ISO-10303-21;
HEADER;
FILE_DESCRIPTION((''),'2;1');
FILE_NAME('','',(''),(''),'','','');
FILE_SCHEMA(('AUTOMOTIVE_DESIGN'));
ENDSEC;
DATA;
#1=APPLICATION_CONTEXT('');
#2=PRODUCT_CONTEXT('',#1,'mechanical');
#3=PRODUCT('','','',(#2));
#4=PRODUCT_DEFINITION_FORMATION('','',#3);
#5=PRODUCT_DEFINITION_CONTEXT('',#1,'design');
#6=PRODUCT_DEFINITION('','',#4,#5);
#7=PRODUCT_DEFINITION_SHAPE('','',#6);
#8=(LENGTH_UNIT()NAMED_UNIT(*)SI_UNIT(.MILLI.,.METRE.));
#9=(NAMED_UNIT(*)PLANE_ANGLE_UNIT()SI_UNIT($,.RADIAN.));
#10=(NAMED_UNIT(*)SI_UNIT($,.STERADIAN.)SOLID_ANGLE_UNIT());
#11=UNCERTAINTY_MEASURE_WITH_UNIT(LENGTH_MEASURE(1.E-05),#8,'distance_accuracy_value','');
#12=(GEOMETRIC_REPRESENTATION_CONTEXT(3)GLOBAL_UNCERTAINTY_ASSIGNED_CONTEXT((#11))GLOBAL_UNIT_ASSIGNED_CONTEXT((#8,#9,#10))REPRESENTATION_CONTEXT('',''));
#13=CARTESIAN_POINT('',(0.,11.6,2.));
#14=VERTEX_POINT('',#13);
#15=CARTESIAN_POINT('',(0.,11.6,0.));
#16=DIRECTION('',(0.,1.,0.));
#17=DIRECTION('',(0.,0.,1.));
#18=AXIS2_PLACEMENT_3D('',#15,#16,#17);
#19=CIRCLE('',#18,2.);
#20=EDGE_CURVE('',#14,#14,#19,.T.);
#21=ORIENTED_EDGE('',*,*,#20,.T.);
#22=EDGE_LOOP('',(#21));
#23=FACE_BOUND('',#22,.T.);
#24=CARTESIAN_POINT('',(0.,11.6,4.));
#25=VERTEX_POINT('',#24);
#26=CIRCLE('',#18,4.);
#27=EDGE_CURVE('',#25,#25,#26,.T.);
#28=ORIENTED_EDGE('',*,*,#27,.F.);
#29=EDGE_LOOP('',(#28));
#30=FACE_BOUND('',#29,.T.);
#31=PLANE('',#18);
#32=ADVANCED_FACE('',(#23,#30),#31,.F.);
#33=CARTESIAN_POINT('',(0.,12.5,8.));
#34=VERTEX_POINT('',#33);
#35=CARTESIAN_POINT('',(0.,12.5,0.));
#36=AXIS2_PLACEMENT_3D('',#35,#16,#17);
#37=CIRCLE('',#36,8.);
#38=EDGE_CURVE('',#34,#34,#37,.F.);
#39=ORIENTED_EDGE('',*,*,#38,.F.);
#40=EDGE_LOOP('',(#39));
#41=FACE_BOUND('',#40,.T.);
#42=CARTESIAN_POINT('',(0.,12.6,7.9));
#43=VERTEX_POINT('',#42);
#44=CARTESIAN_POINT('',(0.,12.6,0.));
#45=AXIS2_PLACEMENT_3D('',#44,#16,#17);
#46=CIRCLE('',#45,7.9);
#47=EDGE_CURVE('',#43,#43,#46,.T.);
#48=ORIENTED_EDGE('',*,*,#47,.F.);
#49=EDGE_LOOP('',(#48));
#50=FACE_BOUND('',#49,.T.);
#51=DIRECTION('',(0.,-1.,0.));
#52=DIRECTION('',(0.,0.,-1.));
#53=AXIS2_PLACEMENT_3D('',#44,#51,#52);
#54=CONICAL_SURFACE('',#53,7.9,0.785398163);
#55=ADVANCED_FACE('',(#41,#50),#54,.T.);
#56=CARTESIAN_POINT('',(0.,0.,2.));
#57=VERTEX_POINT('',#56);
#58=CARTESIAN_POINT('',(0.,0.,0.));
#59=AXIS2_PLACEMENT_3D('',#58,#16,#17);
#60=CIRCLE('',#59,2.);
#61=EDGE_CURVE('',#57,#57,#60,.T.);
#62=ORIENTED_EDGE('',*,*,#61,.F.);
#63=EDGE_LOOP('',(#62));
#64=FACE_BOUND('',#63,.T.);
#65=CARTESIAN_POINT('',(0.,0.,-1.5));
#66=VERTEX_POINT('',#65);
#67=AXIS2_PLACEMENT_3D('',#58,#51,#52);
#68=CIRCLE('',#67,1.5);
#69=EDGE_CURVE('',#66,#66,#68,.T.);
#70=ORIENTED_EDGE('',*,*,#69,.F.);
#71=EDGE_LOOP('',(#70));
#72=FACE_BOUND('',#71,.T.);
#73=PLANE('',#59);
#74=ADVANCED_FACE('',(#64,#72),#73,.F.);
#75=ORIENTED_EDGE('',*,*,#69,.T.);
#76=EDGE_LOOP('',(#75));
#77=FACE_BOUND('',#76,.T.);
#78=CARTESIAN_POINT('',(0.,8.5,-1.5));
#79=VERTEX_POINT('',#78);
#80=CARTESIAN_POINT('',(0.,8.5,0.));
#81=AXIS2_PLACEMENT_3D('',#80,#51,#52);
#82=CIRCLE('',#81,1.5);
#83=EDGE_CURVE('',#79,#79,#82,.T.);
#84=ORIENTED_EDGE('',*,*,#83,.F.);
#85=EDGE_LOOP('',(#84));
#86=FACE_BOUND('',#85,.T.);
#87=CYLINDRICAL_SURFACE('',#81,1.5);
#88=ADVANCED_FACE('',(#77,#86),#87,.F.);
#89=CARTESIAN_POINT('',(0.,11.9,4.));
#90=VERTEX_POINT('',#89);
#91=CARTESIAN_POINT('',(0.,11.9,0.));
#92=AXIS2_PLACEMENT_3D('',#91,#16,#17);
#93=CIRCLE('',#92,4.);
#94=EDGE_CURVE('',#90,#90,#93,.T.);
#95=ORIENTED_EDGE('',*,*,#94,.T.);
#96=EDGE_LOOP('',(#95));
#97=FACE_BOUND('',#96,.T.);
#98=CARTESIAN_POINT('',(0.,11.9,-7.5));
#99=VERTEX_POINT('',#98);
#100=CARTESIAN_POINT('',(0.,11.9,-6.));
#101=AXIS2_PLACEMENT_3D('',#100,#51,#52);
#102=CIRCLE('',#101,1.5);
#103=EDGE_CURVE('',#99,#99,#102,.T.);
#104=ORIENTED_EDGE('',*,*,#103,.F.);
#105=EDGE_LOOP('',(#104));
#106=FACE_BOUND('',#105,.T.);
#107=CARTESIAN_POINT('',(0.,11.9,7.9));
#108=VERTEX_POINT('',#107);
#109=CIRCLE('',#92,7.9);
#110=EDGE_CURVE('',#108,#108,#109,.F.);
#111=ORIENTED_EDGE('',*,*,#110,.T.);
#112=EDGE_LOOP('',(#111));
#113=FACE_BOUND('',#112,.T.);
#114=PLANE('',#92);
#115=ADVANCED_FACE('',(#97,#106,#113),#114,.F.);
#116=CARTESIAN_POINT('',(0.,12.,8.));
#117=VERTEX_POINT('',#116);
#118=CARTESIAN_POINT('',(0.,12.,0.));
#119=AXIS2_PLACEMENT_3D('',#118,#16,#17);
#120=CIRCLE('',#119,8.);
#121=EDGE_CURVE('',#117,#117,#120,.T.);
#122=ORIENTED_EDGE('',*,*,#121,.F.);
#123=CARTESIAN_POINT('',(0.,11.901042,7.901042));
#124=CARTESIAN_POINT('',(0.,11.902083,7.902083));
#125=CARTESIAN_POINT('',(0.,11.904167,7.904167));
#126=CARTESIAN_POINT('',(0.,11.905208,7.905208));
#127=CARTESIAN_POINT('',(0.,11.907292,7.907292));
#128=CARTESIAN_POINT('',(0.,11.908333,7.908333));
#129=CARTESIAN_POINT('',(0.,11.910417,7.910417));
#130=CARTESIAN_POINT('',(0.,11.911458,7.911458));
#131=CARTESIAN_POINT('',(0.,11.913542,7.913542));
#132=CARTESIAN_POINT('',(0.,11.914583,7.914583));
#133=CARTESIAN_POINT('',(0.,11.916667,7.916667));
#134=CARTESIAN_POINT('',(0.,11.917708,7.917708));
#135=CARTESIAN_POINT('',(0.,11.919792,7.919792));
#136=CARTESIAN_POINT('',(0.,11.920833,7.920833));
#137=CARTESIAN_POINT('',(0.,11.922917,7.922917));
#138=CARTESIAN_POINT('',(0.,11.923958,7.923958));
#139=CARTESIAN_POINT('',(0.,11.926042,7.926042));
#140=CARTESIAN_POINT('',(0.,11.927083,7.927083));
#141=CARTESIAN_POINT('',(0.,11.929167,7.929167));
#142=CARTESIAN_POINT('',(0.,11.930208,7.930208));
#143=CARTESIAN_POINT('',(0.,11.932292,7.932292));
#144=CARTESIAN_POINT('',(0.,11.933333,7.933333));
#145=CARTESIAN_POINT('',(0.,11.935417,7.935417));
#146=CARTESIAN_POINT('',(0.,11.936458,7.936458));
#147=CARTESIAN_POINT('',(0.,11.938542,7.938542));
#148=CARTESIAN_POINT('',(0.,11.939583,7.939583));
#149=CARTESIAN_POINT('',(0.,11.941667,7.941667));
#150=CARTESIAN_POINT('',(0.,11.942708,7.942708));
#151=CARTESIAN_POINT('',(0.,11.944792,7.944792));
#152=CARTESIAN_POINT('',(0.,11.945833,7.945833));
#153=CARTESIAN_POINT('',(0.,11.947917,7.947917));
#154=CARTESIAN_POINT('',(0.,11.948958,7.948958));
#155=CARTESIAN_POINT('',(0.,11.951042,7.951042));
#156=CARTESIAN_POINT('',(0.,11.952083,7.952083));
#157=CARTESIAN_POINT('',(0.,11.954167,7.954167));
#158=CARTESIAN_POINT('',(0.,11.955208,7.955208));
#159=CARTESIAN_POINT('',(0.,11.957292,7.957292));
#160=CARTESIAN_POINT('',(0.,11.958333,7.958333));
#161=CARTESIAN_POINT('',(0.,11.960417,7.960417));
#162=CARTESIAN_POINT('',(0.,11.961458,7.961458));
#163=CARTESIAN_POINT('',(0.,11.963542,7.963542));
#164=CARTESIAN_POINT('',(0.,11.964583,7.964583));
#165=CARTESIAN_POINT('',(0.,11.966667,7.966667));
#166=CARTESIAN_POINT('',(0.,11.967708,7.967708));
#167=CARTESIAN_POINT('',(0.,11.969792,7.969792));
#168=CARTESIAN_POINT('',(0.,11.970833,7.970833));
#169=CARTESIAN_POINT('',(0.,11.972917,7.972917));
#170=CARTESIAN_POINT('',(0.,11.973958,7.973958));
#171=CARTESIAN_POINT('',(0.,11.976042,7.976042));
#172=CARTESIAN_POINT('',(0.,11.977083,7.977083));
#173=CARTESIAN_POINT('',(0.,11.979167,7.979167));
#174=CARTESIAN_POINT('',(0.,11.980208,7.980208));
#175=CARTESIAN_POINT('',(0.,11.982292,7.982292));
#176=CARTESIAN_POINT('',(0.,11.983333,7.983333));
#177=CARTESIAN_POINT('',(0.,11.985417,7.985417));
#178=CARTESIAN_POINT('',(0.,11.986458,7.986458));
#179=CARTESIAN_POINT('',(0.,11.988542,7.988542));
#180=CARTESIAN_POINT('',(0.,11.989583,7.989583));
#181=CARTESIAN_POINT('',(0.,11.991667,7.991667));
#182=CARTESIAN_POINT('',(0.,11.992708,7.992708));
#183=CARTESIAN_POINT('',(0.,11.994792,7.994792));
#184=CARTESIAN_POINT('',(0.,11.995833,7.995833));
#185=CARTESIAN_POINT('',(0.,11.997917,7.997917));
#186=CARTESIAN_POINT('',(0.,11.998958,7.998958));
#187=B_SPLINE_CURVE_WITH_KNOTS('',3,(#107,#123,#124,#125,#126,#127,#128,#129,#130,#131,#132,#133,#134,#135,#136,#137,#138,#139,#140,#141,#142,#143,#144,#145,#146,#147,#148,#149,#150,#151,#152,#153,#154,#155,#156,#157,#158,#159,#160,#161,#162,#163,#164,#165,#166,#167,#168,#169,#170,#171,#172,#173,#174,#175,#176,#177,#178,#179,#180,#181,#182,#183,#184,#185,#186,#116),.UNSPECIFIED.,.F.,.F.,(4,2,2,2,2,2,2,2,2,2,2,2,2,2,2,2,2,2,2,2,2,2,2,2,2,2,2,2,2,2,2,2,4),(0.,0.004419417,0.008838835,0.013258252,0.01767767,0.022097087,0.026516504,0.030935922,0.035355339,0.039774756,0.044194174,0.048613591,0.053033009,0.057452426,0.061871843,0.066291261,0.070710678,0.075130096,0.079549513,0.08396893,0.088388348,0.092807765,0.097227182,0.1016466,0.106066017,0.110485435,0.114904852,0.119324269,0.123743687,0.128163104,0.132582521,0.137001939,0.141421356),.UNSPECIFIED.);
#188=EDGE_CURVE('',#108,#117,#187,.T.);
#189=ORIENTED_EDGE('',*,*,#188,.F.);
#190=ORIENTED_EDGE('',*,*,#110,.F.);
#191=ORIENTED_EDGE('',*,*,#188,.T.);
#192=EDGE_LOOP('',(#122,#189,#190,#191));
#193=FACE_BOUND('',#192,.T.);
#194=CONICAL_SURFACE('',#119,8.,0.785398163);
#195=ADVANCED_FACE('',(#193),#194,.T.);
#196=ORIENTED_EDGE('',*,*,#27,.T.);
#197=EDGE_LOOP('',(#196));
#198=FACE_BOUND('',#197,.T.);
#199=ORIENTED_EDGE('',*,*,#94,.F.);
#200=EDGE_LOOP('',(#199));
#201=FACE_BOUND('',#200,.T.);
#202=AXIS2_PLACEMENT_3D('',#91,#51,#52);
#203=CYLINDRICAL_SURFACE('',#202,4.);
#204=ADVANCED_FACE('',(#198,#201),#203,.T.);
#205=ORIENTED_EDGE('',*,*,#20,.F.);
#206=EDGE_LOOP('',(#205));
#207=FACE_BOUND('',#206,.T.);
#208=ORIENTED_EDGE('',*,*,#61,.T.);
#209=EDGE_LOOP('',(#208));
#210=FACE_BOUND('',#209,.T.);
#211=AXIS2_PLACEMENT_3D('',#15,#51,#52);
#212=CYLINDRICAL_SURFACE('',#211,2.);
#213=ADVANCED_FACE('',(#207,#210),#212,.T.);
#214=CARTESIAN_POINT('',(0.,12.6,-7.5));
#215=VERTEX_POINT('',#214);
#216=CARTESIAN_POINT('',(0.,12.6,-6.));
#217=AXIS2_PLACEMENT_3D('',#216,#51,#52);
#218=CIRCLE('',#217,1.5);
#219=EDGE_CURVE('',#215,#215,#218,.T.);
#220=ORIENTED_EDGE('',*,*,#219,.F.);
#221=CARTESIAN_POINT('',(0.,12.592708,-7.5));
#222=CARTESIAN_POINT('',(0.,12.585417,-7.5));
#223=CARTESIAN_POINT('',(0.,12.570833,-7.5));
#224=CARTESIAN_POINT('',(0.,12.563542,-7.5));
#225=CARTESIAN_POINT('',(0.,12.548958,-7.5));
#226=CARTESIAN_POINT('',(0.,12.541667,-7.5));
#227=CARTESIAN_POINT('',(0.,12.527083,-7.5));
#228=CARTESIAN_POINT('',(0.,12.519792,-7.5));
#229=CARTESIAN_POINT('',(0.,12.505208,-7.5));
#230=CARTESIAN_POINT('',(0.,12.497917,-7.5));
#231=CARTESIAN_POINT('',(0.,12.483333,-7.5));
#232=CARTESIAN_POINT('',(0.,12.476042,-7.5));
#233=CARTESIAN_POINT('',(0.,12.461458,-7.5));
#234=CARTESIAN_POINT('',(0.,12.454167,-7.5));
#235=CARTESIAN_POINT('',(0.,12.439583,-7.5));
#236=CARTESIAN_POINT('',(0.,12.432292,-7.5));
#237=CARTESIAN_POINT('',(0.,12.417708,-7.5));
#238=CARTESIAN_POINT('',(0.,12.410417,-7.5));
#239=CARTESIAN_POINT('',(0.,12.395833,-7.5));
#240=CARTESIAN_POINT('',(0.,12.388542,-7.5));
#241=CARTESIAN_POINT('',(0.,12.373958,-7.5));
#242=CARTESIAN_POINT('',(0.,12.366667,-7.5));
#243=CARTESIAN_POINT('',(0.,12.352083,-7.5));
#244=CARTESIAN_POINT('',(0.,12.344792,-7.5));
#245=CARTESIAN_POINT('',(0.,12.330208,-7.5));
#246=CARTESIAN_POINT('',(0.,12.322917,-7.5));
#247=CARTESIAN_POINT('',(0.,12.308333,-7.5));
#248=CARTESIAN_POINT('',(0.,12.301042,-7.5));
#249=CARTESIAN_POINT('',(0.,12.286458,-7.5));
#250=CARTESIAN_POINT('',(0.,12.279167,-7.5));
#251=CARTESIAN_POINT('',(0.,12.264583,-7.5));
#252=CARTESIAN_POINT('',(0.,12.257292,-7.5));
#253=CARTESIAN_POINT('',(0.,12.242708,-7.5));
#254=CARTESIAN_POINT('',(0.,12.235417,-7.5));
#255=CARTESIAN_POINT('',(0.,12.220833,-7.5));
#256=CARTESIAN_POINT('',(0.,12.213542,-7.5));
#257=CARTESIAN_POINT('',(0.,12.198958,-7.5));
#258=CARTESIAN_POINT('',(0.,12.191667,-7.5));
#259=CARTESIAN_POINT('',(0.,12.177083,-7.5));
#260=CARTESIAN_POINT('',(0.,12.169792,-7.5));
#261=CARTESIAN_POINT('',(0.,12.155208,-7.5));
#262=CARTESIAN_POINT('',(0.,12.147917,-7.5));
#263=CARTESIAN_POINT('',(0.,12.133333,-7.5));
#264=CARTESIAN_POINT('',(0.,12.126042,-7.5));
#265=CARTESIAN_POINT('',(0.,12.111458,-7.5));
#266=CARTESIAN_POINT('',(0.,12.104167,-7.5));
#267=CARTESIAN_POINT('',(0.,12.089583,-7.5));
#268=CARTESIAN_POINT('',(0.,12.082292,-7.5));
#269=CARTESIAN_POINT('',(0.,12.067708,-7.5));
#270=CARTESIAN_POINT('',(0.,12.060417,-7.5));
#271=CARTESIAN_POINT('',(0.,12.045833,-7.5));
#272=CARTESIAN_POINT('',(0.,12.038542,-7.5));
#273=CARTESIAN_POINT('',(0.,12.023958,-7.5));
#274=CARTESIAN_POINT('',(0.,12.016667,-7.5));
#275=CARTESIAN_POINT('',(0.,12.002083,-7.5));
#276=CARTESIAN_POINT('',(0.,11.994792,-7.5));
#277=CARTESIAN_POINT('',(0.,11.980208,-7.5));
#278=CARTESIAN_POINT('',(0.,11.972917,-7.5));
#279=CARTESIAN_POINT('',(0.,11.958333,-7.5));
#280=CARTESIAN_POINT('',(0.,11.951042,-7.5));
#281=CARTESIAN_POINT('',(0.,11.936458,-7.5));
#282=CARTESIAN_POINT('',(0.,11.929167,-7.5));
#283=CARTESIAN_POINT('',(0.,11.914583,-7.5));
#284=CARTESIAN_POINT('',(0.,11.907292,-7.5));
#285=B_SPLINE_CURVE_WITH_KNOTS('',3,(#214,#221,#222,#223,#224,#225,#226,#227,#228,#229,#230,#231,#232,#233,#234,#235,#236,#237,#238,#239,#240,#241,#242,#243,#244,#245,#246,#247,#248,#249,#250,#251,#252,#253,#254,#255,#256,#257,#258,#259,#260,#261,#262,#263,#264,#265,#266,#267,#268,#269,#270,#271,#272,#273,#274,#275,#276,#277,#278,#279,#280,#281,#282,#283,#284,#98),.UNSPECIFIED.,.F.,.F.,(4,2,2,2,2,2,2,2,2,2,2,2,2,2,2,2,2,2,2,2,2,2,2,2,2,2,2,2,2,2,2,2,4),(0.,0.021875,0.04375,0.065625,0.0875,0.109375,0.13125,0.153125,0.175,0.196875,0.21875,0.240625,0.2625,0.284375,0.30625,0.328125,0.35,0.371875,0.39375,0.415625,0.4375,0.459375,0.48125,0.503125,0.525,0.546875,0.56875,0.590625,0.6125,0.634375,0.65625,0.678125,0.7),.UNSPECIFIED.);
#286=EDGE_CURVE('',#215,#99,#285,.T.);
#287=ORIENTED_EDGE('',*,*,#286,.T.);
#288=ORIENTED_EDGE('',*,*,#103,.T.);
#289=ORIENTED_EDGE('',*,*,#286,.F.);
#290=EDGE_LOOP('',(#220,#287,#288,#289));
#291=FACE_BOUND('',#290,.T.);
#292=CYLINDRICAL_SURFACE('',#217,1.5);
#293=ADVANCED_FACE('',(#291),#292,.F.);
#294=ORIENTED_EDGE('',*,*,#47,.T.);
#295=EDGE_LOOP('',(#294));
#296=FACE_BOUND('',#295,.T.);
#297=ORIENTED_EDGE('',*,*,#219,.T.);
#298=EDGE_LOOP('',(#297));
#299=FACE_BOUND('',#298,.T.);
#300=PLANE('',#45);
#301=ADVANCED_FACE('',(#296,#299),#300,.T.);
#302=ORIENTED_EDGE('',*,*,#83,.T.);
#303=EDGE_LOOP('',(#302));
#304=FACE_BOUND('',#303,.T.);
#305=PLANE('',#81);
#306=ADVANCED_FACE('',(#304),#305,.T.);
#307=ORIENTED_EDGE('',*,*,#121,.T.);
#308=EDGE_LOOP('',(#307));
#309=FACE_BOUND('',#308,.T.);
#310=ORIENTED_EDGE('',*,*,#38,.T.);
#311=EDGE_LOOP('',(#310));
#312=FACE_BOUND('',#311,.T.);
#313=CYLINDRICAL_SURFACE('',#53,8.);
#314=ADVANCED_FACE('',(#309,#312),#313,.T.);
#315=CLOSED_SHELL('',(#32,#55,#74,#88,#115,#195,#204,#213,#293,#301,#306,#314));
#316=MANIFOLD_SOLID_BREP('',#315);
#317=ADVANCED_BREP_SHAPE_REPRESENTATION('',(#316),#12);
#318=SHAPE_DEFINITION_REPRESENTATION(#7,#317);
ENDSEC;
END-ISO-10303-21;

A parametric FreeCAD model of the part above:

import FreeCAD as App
import Part
import Sketcher
from FreeCAD import Vector


def edges_at(feature, points):
    """Names of the edges that pass closest to the given points."""
    edges = feature.Shape.Edges
    near = lambda p: min(range(len(edges)), key=lambda i: edges[i].distToShape(Part.Vertex(*p))[0])
    return sorted({f"Edge{near(p) + 1}" for p in points})

doc = App.newDocument("Part")
body = doc.addObject("PartDesign::Body", "Body")

# Sketch on XZ plane
sketch1 = doc.addObject("Sketcher::SketchObject", "Sketch")
body.addObject(sketch1)
sketch1.AttachmentSupport = (doc.XZ_Plane, [""])
sketch1.MapMode = "FlatFace"
sketch1.addGeometry(Part.Circle(Vector(0, 0, 0), Vector(0, 0, 1), 2), False)
sketch1.addConstraint(Sketcher.Constraint("Coincident", 0, 3, -1, 1))
sketch1.addConstraint(Sketcher.Constraint("Diameter", 0, 4.0))
pad1 = doc.addObject("PartDesign::Pad", "Pad")
body.addObject(pad1)
pad1.Profile = sketch1
pad1.Length = 11.6
pad1.Reversed = True

# Sketch on XZ plane
sketch2 = doc.addObject("Sketcher::SketchObject", "Sketch001")
body.addObject(sketch2)
sketch2.AttachmentSupport = (doc.XZ_Plane, [""])
sketch2.MapMode = "FlatFace"
sketch2.AttachmentOffset = App.Placement(Vector(0, 0, -11.6), App.Rotation())
sketch2.addGeometry(Part.Circle(Vector(0, 0, 0), Vector(0, 0, 1), 4), False)
sketch2.addConstraint(Sketcher.Constraint("Coincident", 0, 3, -1, 1))
sketch2.addConstraint(Sketcher.Constraint("Diameter", 0, 8.0))
pad2 = doc.addObject("PartDesign::Pad", "Pad001")
body.addObject(pad2)
pad2.Profile = sketch2
pad2.Length = 0.3
pad2.Reversed = True

# Sketch on XZ plane
sketch3 = doc.addObject("Sketcher::SketchObject", "Sketch002")
body.addObject(sketch3)
sketch3.AttachmentSupport = (doc.XZ_Plane, [""])
sketch3.MapMode = "FlatFace"
sketch3.AttachmentOffset = App.Placement(Vector(0, 0, -11.9), App.Rotation())
sketch3.addGeometry(Part.Circle(Vector(0, 0, 0), Vector(0, 0, 1), 8), False)
sketch3.addConstraint(Sketcher.Constraint("Coincident", 0, 3, -1, 1))
sketch3.addConstraint(Sketcher.Constraint("Diameter", 0, 16.0))
pad3 = doc.addObject("PartDesign::Pad", "Pad002")
body.addObject(pad3)
pad3.Profile = sketch3
pad3.Length = 0.7
pad3.Reversed = True

# Sketch on XZ plane
sketch4 = doc.addObject("Sketcher::SketchObject", "Sketch003")
body.addObject(sketch4)
sketch4.AttachmentSupport = (doc.XZ_Plane, [""])
sketch4.MapMode = "FlatFace"
sketch4.addGeometry(Part.Circle(Vector(0, 0, 0), Vector(0, 0, 1), 1.5), False)
sketch4.addConstraint(Sketcher.Constraint("Coincident", 0, 3, -1, 1))
sketch4.addConstraint(Sketcher.Constraint("Diameter", 0, 3.0))
pocket1 = doc.addObject("PartDesign::Pocket", "Pocket")
body.addObject(pocket1)
pocket1.Profile = sketch4
pocket1.Length = 8.5

# Sketch on XZ plane
sketch5 = doc.addObject("Sketcher::SketchObject", "Sketch004")
body.addObject(sketch5)
sketch5.AttachmentSupport = (doc.XZ_Plane, [""])
sketch5.MapMode = "FlatFace"
sketch5.AttachmentOffset = App.Placement(Vector(0, 0, -11.9), App.Rotation())
sketch5.addGeometry(Part.Circle(Vector(0, -6, 0), Vector(0, 0, 1), 1.5), False)
sketch5.addConstraint(Sketcher.Constraint("PointOnObject", 0, 3, -2))
sketch5.addConstraint(Sketcher.Constraint("Diameter", 0, 3.0))
sketch5.addConstraint(Sketcher.Constraint("DistanceY", 0, 3, -1, 1, 6.0))
pocket2 = doc.addObject("PartDesign::Pocket", "Pocket001")
body.addObject(pocket2)
pocket2.Profile = sketch5
pocket2.Type = "ThroughAll"
doc.recompute()

chamfer = doc.addObject("PartDesign::Chamfer", "Chamfer")
body.addObject(chamfer)
chamfer.Base = (pocket2, edges_at(pocket2, [(0, 12.6, -8), (0, 11.9, -8)]))
chamfer.Size = 0.1

doc.recompute()
